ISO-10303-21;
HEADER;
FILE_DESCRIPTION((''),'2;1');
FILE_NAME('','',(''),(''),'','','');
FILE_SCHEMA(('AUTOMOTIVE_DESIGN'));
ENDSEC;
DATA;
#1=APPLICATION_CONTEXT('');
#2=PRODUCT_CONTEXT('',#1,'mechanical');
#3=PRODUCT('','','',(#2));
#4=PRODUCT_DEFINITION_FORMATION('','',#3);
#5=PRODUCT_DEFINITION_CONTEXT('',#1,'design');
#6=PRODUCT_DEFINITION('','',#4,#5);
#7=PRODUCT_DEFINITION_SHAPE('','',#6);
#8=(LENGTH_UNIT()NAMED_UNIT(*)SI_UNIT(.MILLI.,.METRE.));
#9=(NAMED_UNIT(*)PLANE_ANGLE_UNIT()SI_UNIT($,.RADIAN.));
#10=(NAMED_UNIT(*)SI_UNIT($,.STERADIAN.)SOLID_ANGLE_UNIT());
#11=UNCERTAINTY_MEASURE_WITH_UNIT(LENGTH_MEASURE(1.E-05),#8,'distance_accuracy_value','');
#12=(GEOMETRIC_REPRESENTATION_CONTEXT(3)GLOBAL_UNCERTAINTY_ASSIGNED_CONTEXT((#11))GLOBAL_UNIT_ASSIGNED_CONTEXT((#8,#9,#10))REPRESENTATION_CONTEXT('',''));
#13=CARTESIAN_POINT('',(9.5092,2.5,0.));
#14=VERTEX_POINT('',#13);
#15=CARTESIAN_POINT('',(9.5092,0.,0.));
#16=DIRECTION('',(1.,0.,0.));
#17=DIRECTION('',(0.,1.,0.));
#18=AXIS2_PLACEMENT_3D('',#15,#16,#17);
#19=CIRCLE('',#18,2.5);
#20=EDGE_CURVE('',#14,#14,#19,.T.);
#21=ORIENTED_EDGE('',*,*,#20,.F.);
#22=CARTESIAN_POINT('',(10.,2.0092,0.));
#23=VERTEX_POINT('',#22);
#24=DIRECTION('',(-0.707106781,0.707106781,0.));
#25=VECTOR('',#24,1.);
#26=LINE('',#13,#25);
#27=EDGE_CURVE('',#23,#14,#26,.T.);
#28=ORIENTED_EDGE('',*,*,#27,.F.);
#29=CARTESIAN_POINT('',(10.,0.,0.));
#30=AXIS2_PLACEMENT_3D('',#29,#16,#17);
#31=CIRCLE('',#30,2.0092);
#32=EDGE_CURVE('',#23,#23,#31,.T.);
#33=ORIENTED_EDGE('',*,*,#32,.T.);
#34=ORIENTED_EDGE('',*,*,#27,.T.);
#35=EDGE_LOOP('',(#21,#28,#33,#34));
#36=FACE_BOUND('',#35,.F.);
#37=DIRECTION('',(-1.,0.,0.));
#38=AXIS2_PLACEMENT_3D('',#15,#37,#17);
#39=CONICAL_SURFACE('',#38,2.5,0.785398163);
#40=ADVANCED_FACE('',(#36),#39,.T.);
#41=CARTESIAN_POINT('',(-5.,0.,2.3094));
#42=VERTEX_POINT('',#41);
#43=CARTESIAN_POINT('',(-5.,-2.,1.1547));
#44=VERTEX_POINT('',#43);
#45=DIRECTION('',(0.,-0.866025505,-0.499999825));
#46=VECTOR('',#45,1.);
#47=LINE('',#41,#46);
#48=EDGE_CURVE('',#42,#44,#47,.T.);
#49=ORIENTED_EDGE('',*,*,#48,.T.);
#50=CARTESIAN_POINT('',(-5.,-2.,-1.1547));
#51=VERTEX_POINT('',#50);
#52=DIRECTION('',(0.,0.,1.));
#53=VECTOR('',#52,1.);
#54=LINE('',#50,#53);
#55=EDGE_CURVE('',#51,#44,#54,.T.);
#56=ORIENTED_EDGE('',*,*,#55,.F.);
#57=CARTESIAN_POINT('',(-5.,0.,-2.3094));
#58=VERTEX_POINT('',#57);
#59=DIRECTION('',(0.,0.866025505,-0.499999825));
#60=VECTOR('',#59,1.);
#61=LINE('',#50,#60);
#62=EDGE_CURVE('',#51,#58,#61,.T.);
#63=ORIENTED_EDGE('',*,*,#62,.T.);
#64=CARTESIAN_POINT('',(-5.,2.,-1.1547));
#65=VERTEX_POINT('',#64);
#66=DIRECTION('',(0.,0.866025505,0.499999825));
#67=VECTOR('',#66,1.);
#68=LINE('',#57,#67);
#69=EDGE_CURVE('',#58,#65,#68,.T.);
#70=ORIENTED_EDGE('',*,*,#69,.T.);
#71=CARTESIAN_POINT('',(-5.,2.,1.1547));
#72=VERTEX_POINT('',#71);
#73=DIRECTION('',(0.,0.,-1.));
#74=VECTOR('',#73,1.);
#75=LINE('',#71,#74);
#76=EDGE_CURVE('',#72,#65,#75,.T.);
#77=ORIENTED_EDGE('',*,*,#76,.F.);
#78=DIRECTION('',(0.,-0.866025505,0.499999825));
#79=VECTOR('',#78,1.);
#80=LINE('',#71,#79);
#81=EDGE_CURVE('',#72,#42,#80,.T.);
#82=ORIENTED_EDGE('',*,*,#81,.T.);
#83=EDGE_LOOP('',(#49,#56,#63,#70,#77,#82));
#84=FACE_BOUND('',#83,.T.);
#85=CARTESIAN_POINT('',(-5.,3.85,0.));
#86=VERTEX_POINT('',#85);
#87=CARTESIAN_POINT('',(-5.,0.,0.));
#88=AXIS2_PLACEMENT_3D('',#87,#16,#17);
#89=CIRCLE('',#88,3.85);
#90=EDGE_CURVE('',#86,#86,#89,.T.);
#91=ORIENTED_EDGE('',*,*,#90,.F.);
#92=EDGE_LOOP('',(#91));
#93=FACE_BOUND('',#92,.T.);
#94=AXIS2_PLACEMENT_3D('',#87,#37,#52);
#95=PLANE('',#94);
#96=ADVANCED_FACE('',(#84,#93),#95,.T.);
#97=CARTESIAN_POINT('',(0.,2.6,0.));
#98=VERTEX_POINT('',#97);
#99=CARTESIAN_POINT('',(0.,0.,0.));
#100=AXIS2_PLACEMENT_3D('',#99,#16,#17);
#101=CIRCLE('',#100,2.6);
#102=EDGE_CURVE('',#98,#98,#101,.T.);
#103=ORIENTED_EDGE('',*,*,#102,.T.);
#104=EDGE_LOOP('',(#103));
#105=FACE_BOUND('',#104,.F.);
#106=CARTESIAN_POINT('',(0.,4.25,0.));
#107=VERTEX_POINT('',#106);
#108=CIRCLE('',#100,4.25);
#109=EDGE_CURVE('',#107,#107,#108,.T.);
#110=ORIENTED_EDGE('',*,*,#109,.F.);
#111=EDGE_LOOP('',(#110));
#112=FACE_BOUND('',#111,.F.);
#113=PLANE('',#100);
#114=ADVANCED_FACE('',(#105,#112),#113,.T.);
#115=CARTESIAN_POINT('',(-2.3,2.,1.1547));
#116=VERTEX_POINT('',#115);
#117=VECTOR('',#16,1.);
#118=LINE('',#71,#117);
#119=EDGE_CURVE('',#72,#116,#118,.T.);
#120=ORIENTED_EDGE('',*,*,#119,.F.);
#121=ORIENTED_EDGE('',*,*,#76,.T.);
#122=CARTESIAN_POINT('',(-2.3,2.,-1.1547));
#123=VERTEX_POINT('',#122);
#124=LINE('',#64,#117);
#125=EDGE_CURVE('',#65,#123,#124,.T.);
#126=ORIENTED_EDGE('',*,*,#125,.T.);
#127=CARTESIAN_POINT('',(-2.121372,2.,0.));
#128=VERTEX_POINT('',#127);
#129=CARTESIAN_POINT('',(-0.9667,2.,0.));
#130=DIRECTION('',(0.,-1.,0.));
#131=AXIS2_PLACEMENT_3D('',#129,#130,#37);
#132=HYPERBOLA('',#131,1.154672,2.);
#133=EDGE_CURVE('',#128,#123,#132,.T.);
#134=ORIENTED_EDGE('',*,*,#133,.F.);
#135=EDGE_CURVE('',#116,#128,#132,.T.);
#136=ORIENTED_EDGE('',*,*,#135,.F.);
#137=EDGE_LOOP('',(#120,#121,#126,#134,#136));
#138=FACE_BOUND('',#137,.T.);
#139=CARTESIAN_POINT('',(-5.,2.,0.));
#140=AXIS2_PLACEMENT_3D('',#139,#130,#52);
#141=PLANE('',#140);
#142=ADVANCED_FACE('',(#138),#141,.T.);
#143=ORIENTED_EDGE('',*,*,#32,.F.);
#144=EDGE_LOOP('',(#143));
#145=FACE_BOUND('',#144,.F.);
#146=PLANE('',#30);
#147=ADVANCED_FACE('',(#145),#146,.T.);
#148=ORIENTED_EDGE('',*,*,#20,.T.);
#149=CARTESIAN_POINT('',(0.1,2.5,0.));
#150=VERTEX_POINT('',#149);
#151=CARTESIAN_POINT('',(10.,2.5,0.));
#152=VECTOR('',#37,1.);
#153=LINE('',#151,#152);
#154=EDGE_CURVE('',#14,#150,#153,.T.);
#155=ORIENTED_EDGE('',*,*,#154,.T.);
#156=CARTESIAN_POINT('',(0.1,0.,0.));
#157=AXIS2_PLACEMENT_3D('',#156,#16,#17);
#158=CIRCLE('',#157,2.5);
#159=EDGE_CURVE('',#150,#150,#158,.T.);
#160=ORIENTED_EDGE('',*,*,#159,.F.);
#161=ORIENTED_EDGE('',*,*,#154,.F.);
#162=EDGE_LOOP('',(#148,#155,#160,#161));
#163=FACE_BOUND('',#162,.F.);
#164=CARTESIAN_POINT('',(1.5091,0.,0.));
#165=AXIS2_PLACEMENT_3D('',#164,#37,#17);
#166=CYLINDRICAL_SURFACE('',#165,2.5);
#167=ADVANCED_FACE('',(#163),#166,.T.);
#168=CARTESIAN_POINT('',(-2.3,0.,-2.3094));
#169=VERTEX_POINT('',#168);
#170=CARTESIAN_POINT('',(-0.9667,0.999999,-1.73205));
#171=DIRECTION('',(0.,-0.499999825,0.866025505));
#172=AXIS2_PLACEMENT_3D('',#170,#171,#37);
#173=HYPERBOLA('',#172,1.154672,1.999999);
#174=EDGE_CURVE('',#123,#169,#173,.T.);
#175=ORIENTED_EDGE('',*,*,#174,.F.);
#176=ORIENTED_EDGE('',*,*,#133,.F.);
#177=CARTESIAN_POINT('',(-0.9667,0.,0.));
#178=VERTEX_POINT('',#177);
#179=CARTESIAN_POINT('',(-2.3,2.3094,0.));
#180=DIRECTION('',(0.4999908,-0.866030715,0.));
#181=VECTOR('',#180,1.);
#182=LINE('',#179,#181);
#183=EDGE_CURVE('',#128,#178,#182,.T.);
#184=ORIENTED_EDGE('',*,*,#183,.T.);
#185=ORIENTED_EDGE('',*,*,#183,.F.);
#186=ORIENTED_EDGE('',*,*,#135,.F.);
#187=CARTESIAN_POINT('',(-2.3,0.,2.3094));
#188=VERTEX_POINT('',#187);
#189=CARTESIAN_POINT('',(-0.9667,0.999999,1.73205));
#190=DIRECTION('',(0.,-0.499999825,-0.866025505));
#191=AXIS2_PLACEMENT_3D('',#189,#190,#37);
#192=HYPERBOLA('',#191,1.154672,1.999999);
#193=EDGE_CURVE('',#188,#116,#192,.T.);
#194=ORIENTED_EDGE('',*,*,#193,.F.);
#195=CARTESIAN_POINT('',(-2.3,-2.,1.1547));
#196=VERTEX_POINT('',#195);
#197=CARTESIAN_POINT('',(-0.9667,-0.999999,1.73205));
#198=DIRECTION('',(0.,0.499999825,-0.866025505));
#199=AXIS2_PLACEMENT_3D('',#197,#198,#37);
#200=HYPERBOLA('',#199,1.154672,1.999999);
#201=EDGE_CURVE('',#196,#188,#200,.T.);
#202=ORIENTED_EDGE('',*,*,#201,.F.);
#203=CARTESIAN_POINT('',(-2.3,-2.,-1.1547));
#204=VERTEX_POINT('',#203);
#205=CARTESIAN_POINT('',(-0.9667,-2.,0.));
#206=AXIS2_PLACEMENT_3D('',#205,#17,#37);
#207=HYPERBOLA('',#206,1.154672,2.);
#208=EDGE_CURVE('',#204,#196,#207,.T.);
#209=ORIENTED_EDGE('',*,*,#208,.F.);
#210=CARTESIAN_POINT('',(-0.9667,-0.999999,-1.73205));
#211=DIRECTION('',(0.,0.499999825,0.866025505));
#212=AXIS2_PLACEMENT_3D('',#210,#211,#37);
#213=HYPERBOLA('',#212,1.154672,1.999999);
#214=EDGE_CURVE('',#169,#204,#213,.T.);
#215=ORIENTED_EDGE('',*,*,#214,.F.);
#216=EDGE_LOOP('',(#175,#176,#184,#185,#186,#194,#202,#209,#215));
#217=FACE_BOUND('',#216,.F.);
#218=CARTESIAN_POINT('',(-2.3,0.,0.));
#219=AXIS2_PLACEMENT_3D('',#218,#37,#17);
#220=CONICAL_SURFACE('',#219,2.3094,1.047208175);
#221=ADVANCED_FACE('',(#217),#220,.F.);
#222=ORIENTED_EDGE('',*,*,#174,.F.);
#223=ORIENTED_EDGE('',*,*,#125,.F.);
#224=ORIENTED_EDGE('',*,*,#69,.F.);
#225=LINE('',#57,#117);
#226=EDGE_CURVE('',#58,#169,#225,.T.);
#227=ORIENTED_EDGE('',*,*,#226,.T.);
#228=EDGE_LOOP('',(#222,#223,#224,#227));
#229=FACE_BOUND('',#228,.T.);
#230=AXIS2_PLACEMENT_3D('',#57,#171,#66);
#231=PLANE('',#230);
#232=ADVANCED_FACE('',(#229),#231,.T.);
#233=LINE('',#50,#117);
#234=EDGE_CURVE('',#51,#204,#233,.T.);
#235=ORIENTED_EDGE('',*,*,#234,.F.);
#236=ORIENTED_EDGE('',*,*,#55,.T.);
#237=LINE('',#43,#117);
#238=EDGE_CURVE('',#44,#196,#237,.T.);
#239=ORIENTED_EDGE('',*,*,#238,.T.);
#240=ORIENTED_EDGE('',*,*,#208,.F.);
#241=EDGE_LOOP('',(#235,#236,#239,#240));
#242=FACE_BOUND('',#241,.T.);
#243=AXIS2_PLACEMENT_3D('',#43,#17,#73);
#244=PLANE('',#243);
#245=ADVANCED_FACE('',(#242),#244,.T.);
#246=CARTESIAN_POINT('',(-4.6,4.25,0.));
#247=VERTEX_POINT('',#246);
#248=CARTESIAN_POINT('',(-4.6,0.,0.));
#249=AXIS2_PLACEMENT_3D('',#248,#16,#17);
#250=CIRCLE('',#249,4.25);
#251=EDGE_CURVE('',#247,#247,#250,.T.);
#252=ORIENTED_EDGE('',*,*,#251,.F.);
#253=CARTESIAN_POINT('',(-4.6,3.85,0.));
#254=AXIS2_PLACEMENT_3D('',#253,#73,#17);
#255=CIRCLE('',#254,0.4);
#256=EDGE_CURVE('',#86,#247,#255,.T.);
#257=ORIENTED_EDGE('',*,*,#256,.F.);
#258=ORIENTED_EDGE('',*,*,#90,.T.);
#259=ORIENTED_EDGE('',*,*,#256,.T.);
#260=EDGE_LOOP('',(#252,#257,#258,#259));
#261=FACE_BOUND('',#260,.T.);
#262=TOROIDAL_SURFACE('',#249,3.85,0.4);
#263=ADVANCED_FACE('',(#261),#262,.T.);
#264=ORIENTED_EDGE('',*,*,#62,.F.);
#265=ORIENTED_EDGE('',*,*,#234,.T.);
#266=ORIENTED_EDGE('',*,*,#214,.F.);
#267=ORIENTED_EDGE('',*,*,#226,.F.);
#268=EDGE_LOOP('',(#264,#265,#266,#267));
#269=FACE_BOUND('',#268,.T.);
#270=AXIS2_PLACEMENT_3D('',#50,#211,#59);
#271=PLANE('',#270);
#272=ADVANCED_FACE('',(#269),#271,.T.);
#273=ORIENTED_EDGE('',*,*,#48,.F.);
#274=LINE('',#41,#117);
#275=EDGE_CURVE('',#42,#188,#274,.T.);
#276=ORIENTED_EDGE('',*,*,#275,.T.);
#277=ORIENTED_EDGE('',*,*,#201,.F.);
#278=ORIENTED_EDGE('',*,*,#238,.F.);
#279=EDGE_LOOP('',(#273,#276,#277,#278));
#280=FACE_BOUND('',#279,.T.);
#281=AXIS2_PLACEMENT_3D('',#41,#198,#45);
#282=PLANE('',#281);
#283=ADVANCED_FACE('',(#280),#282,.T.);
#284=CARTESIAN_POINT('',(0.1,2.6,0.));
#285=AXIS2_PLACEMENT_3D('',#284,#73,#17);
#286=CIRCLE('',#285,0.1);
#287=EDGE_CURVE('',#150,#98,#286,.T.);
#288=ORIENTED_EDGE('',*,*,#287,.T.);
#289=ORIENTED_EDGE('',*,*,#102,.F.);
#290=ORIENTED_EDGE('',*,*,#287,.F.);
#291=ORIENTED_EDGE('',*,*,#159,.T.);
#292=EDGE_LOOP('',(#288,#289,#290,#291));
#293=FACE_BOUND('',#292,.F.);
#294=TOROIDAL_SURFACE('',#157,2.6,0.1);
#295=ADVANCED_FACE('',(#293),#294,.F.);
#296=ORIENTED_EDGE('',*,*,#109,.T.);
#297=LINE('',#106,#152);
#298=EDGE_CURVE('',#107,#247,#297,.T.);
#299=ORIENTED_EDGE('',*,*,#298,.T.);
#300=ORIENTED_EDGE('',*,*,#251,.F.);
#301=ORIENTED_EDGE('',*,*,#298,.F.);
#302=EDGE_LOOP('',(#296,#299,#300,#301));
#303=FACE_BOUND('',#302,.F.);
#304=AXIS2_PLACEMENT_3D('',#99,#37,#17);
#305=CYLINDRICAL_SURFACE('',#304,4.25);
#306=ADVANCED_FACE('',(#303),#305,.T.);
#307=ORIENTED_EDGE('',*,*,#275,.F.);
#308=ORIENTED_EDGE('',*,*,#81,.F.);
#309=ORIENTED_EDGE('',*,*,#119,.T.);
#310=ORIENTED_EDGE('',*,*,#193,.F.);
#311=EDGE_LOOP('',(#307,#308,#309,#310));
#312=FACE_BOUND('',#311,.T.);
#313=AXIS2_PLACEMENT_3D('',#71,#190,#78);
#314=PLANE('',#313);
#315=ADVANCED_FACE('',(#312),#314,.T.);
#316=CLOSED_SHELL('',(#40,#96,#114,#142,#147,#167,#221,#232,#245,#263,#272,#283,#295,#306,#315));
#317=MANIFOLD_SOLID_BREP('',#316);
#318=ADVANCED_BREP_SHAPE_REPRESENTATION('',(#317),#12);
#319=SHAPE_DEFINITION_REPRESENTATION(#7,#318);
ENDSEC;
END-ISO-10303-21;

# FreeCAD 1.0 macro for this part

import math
import FreeCAD as App
import Part
import Sketcher
Q = App.Units.Quantity


def edges_at(feature, points):
    """Names of the edges that pass closest to the given points."""
    edges = feature.Shape.Edges
    near = lambda p: min(range(len(edges)), key=lambda i: edges[i].distToShape(Part.Vertex(*p))[0])
    return sorted({f"Edge{near(p) + 1}" for p in points})


def add_polygon(sketch, points):
    """Adds a closed chain of lines whose ends are joined by coincident constraints."""
    first, n = sketch.GeometryCount, len(points)
    for a, b in zip(points, points[1:] + points[:1]):
        sketch.addGeometry(Part.LineSegment(App.Vector(*a, 0), App.Vector(*b, 0)), False)
    for i in range(n):
        sketch.addConstraint(Sketcher.Constraint("Coincident", first + i, 2, first + (i + 1) % n, 1))

doc = App.newDocument("Part")
body = doc.addObject("PartDesign::Body", "Body")

sketch1 = doc.addObject("Sketcher::SketchObject", "Sketch")
body.addObject(sketch1)
sketch1.AttachmentSupport = (doc.XY_Plane, [""])
sketch1.MapMode = "FlatFace"
add_polygon(sketch1, [(-2.3, 2.3), (-1, 0), (10, 0), (10, 2.5), (0, 2.5), (0, 4.2), (-5, 4.2), (-5, 2.3)])
sketch1.addConstraint(Sketcher.Constraint("Horizontal", 1))
sketch1.addConstraint(Sketcher.Constraint("Vertical", 2))
sketch1.addConstraint(Sketcher.Constraint("Horizontal", 3))
sketch1.addConstraint(Sketcher.Constraint("Vertical", 4))
sketch1.addConstraint(Sketcher.Constraint("Horizontal", 5))
sketch1.addConstraint(Sketcher.Constraint("Vertical", 6))
sketch1.addConstraint(Sketcher.Constraint("Horizontal", 7))
sketch1.addConstraint(Sketcher.Constraint("PointOnObject", 0, 2, -1))
sketch1.addConstraint(Sketcher.Constraint("PointOnObject", 3, 2, -2))
sketch1.addConstraint(Sketcher.Constraint("DistanceX", 3, 2, 3, 1, Q("10 mm")))
sketch1.addConstraint(Sketcher.Constraint("DistanceX", 5, 2, 5, 1, Q("5 mm")))
sketch1.addConstraint(Sketcher.Constraint("DistanceX", 7, 1, 7, 2, Q("2.7 mm")))
sketch1.addConstraint(Sketcher.Constraint("Angle", 0, Q("-60.0006 deg")))
sketch1.addConstraint(Sketcher.Constraint("DistanceY", 2, 1, 2, 2, Q("2.5 mm")))
sketch1.addConstraint(Sketcher.Constraint("DistanceY", 4, 1, 4, 2, Q("1.75 mm")))
sketch1.addConstraint(Sketcher.Constraint("DistanceX", 1, 1, 1, 2, Q("10.9667 mm")))
revolution = doc.addObject("PartDesign::Revolution", "Revolution")
body.addObject(revolution)
revolution.Profile = sketch1
revolution.ReferenceAxis = (sketch1, ["H_Axis"])
revolution.Angle = 360

sketch2 = doc.addObject("Sketcher::SketchObject", "Sketch001")
body.addObject(sketch2)
sketch2.AttachmentSupport = (doc.YZ_Plane, [""])
sketch2.MapMode = "FlatFace"
sketch2.AttachmentOffset = App.Placement(App.Vector(0, 0, -5), App.Rotation())
sketch2.addGeometry(Part.LineSegment(App.Vector(2, 1.2, 0), App.Vector(0, 2.3, 0)), False)
sketch2.addGeometry(Part.ArcOfCircle(Part.Circle(App.Vector(0, 0, 0), App.Vector(0, 0, 1), 2.3), math.radians(30), math.radians(90)), False)
sketch2.addGeometry(Part.ArcOfCircle(Part.Circle(App.Vector(0, 0, 0), App.Vector(0, 0, 1), 2.3), math.radians(90), math.radians(150)), False)
sketch2.addGeometry(Part.LineSegment(App.Vector(0, 2.3, 0), App.Vector(-2, 1.2, 0)), False)
sketch2.addGeometry(Part.ArcOfCircle(Part.Circle(App.Vector(0, 0, 0), App.Vector(0, 0, 1), 2.3), math.radians(-30), math.radians(30)), False)
sketch2.addGeometry(Part.LineSegment(App.Vector(2, -1.2, 0), App.Vector(2, 1.2, 0)), False)
sketch2.addGeometry(Part.LineSegment(App.Vector(-2, 1.2, 0), App.Vector(-2, -1.2, 0)), False)
sketch2.addGeometry(Part.ArcOfCircle(Part.Circle(App.Vector(0, 0, 0), App.Vector(0, 0, 1), 2.3), math.radians(150), math.radians(210)), False)
sketch2.addGeometry(Part.LineSegment(App.Vector(-2, -1.2, 0), App.Vector(0, -2.3, 0)), False)
sketch2.addGeometry(Part.ArcOfCircle(Part.Circle(App.Vector(0, 0, 0), App.Vector(0, 0, 1), 2.3), math.radians(-150), math.radians(-90)), False)
sketch2.addGeometry(Part.ArcOfCircle(Part.Circle(App.Vector(0, 0, 0), App.Vector(0, 0, 1), 2.3), math.radians(-90), math.radians(-30)), False)
sketch2.addGeometry(Part.LineSegment(App.Vector(0, -2.3, 0), App.Vector(2, -1.2, 0)), False)
sketch2.addConstraint(Sketcher.Constraint("Coincident", 0, 1, 1, 1))
sketch2.addConstraint(Sketcher.Constraint("Coincident", 1, 2, 0, 2))
sketch2.addConstraint(Sketcher.Constraint("Coincident", 2, 1, 3, 1))
sketch2.addConstraint(Sketcher.Constraint("Coincident", 3, 2, 2, 2))
sketch2.addConstraint(Sketcher.Constraint("Coincident", 4, 1, 5, 1))
sketch2.addConstraint(Sketcher.Constraint("Coincident", 5, 2, 4, 2))
sketch2.addConstraint(Sketcher.Constraint("Coincident", 6, 1, 7, 1))
sketch2.addConstraint(Sketcher.Constraint("Coincident", 7, 2, 6, 2))
sketch2.addConstraint(Sketcher.Constraint("Coincident", 8, 1, 9, 1))
sketch2.addConstraint(Sketcher.Constraint("Coincident", 9, 2, 8, 2))
sketch2.addConstraint(Sketcher.Constraint("Coincident", 10, 1, 11, 1))
sketch2.addConstraint(Sketcher.Constraint("Coincident", 11, 2, 10, 2))
sketch2.addConstraint(Sketcher.Constraint("Vertical", 5))
sketch2.addConstraint(Sketcher.Constraint("Vertical", 6))
sketch2.addConstraint(Sketcher.Constraint("Coincident", 1, 3, -1, 1))
sketch2.addConstraint(Sketcher.Constraint("Coincident", 2, 3, -1, 1))
sketch2.addConstraint(Sketcher.Constraint("Coincident", 4, 3, -1, 1))
sketch2.addConstraint(Sketcher.Constraint("Coincident", 7, 3, -1, 1))
sketch2.addConstraint(Sketcher.Constraint("Coincident", 9, 3, -1, 1))
sketch2.addConstraint(Sketcher.Constraint("Coincident", 10, 3, -1, 1))
sketch2.addConstraint(Sketcher.Constraint("Coincident", 2, 1, 1, 2))
sketch2.addConstraint(Sketcher.Constraint("Coincident", 5, 2, 0, 1))
sketch2.addConstraint(Sketcher.Constraint("Coincident", 6, 1, 3, 2))
sketch2.addConstraint(Sketcher.Constraint("Coincident", 8, 1, 7, 2))
sketch2.addConstraint(Sketcher.Constraint("Coincident", 10, 1, 9, 2))
sketch2.addConstraint(Sketcher.Constraint("PointOnObject", 1, 2, -2))
sketch2.addConstraint(Sketcher.Constraint("PointOnObject", 9, 2, -2))
sketch2.addConstraint(Sketcher.Constraint("Parallel", 0, 8))
sketch2.addConstraint(Sketcher.Constraint("Parallel", 3, 11))
sketch2.addConstraint(Sketcher.Constraint("Angle", 0, Q("150 deg")))
sketch2.addConstraint(Sketcher.Constraint("DistanceX", -1, 1, 0, 1, Q("2 mm")))
pad1 = doc.addObject("PartDesign::Pad", "Pad")
body.addObject(pad1)
pad1.Profile = sketch2
pad1.Length = 2.8786
doc.recompute()

fillet = doc.addObject("PartDesign::Fillet", "Fillet")
body.addObject(fillet)
fillet.Base = (pad1, edges_at(pad1, [(-5, -4.25, 0)]))
fillet.Radius = 0.4
doc.recompute()

chamfer = doc.addObject("PartDesign::Chamfer", "Chamfer")
body.addObject(chamfer)
chamfer.Base = (fillet, edges_at(fillet, [(10, -2.5, 0)]))
chamfer.ChamferType = "Two distances"
chamfer.Size = 0.4908
chamfer.Size2 = 0.4908
doc.recompute()

fillet2 = doc.addObject("PartDesign::Fillet", "Fillet001")
body.addObject(fillet2)
fillet2.Base = (chamfer, edges_at(chamfer, [(0, -2.5, 0)]))
fillet2.Radius = 0.1

doc.recompute()
